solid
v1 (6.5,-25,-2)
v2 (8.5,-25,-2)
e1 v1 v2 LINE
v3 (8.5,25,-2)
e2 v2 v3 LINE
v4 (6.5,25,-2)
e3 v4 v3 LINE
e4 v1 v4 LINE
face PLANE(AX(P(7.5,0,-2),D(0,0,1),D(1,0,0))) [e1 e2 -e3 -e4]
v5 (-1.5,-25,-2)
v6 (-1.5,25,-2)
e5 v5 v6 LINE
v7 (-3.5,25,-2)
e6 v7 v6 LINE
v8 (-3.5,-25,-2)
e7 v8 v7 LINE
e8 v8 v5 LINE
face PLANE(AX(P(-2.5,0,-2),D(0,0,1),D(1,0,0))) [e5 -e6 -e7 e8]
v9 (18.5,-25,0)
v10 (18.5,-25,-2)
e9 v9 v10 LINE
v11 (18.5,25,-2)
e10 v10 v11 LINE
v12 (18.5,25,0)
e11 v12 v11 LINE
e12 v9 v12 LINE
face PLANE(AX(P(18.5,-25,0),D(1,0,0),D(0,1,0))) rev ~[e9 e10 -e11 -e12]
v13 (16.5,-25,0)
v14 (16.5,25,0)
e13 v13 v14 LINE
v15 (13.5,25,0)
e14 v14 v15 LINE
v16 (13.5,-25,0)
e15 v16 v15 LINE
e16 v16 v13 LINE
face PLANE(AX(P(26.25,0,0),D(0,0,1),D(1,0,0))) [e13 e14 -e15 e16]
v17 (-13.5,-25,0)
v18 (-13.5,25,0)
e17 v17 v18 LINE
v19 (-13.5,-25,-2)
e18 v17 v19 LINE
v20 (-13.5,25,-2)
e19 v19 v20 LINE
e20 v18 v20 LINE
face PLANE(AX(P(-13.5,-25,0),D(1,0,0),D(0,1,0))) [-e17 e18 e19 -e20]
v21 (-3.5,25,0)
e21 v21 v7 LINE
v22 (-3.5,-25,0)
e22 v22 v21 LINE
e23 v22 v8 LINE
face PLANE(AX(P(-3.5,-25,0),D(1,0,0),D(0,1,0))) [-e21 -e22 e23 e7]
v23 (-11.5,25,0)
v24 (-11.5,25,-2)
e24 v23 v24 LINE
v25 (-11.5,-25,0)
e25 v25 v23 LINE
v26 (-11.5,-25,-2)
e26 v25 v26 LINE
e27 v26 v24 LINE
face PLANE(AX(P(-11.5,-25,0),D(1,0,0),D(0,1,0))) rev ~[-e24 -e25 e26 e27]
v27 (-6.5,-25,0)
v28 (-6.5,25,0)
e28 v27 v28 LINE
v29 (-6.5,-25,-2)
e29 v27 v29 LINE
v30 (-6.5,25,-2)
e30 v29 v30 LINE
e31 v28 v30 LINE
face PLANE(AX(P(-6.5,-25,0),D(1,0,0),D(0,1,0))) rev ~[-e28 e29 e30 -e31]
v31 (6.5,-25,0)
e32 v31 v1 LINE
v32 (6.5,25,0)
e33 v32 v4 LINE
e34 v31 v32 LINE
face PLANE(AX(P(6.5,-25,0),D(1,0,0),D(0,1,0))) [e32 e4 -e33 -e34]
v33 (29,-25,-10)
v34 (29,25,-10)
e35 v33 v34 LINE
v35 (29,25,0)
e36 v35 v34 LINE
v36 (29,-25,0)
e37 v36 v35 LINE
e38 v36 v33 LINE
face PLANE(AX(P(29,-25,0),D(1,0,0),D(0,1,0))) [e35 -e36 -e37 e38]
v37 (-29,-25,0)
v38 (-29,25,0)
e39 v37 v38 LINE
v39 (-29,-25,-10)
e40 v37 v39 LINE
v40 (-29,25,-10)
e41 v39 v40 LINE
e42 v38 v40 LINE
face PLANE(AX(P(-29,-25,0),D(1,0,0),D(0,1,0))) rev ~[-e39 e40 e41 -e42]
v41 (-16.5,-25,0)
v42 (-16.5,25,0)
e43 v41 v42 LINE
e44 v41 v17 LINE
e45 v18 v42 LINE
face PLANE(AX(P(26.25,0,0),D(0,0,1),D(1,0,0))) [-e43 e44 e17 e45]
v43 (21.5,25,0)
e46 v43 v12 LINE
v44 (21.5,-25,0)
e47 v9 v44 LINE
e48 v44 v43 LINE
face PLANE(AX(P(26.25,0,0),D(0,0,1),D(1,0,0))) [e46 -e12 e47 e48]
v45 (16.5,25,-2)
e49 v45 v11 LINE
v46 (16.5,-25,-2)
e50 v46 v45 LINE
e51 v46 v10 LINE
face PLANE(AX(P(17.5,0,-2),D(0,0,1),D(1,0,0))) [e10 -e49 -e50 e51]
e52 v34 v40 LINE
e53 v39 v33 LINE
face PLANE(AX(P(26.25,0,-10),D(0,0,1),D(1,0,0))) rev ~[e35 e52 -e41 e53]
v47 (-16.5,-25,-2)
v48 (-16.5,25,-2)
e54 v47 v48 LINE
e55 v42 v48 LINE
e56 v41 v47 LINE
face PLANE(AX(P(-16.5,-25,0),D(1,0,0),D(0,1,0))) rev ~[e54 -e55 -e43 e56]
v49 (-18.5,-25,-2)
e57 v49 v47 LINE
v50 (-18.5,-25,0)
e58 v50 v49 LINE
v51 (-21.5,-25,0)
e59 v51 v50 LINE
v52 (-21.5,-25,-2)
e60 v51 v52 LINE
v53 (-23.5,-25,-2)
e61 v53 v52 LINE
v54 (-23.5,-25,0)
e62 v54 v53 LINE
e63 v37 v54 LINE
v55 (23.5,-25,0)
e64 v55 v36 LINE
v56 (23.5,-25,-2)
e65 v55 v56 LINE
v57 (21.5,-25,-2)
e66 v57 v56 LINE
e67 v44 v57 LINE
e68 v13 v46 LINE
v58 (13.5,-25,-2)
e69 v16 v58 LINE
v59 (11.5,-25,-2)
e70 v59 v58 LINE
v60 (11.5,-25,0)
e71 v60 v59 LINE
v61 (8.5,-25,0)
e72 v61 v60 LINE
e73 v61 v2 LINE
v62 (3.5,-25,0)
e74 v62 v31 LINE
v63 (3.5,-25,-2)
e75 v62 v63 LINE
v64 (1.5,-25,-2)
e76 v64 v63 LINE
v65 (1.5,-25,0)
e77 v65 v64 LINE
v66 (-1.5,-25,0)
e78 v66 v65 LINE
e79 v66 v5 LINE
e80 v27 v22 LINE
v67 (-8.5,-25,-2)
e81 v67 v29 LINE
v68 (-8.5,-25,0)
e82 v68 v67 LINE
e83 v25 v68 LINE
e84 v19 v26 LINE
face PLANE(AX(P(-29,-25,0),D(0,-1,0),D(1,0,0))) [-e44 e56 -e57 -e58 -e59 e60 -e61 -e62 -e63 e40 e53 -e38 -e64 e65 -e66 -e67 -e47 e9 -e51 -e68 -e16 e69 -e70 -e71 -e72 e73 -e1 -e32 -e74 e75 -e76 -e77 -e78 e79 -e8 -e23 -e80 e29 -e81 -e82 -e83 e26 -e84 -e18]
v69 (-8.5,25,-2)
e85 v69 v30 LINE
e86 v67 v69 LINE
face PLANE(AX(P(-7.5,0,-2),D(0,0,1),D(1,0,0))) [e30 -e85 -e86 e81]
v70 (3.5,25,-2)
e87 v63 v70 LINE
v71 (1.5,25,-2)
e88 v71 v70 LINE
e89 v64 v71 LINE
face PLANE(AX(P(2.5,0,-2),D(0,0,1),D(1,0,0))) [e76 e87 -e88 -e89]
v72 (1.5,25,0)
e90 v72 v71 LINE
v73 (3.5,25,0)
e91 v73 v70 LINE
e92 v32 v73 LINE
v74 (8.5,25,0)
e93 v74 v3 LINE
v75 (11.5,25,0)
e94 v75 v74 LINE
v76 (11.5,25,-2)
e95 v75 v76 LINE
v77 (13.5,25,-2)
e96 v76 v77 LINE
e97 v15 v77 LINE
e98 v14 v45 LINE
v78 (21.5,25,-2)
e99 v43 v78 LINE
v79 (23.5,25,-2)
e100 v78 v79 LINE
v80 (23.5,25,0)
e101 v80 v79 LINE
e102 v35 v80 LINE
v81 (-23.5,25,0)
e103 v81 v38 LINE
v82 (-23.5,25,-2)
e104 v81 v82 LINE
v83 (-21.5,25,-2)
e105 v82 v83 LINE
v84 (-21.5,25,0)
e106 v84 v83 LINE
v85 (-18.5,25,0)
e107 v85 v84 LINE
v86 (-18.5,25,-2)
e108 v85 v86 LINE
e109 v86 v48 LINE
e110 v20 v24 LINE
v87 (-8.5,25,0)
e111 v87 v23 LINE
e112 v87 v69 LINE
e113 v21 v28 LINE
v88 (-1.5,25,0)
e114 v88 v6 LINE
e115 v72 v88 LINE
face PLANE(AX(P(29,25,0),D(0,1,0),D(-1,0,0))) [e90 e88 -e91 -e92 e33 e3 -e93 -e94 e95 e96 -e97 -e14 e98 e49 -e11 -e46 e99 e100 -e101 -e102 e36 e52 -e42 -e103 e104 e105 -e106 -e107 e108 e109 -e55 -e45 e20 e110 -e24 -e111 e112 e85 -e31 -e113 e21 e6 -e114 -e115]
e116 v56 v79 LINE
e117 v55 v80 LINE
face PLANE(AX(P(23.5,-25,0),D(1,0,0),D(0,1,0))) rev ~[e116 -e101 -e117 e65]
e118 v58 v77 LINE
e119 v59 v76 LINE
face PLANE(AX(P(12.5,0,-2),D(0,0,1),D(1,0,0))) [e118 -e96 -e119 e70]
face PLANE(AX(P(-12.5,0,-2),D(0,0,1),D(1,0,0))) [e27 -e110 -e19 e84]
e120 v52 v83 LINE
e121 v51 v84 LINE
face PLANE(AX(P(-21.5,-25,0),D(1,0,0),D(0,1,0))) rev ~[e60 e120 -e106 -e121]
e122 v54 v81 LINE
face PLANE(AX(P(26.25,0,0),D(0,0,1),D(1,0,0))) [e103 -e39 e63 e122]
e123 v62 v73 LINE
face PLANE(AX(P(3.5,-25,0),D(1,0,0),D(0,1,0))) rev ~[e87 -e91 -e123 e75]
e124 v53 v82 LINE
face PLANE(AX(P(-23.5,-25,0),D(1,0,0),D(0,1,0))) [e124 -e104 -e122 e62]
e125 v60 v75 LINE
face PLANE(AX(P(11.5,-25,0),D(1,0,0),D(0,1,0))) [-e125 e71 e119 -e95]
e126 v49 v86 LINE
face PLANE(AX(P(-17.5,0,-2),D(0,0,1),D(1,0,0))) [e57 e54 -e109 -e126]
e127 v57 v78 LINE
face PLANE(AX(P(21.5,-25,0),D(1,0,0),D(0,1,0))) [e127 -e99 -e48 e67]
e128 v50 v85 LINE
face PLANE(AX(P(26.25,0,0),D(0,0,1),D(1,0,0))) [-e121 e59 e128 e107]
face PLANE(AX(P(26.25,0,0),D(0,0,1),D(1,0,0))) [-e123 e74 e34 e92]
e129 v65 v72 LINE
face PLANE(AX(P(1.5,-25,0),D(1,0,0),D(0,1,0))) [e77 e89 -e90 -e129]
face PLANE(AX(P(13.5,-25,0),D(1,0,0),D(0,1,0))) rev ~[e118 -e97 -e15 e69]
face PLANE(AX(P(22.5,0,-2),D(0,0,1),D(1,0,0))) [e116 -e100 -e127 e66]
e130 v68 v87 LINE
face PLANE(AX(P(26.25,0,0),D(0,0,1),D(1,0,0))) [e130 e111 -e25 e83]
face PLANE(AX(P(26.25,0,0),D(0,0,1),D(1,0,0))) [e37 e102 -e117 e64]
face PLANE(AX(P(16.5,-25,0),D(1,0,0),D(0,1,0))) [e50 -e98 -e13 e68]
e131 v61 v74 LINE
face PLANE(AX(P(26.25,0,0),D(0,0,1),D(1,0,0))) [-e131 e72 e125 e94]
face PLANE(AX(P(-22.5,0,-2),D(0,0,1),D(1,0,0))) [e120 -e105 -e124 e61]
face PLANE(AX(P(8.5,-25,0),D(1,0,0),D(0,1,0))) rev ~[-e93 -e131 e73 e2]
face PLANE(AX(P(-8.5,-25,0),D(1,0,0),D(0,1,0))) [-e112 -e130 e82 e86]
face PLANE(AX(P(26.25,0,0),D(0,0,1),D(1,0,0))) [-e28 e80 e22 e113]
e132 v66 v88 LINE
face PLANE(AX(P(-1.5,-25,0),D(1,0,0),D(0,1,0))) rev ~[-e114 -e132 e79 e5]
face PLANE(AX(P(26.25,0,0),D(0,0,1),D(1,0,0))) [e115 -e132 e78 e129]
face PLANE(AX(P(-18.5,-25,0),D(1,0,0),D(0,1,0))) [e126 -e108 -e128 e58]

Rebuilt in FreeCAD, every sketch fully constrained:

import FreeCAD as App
import Part
import Sketcher
Q = App.Units.Quantity

doc = App.newDocument("Part")
body = doc.addObject("PartDesign::Body", "Body")

# Sketch on XY plane
sketch1 = body.newObject("Sketcher::SketchObject", "Sketch")
sketch1.AttachmentSupport = (doc.getObject("XY_Plane"), [""])
sketch1.MapMode = "FlatFace"
sketch1.addGeometry([
    Part.LineSegment(App.Vector(29, -25, 0), App.Vector(29, 25, 0)),
    Part.LineSegment(App.Vector(29, 25, 0), App.Vector(-29, 25, 0)),
    Part.LineSegment(App.Vector(-29, 25, 0), App.Vector(-29, -25, 0)),
    Part.LineSegment(App.Vector(-29, -25, 0), App.Vector(29, -25, 0)),
], False)
sketch1.addConstraint([
    Sketcher.Constraint("Coincident", 0, 2, 1, 1),
    Sketcher.Constraint("Coincident", 1, 2, 2, 1),
    Sketcher.Constraint("Coincident", 2, 2, 3, 1),
    Sketcher.Constraint("Coincident", 3, 2, 0, 1),
    Sketcher.Constraint("Vertical", 0),
    Sketcher.Constraint("Horizontal", 1),
    Sketcher.Constraint("Vertical", 2),
    Sketcher.Constraint("Horizontal", 3),
    Sketcher.Constraint("Symmetric", 0, 2, 2, 2, -1, 1),
    Sketcher.Constraint("DistanceX", 1, 2, 1, 1, Q("58 mm")),
    Sketcher.Constraint("DistanceY", 0, 1, 0, 2, Q("50 mm")),
])
pad1 = body.newObject("PartDesign::Pad", "Pad")
pad1.Profile = sketch1
pad1.Length = 10
pad1.Reversed = True

# Sketch on XY plane
sketch2 = body.newObject("Sketcher::SketchObject", "Sketch001")
sketch2.AttachmentSupport = (doc.getObject("XY_Plane"), [""])
sketch2.MapMode = "FlatFace"
sketch2.addGeometry([
    Part.LineSegment(App.Vector(-23.5, 25, 0), App.Vector(-23.5, -25, 0)),  # 0
    Part.LineSegment(App.Vector(-23.5, -25, 0), App.Vector(-21.5, -25, 0)),  # 1
    Part.LineSegment(App.Vector(-21.5, -25, 0), App.Vector(-21.5, 25, 0)),  # 2
    Part.LineSegment(App.Vector(-21.5, 25, 0), App.Vector(-23.5, 25, 0)),  # 3
    Part.LineSegment(App.Vector(-18.5, 25, 0), App.Vector(-18.5, -25, 0)),  # 4
    Part.LineSegment(App.Vector(-18.5, -25, 0), App.Vector(-16.5, -25, 0)),  # 5
    Part.LineSegment(App.Vector(-16.5, -25, 0), App.Vector(-16.5, 25, 0)),  # 6
    Part.LineSegment(App.Vector(-16.5, 25, 0), App.Vector(-18.5, 25, 0)),  # 7
    Part.LineSegment(App.Vector(-13.5, 25, 0), App.Vector(-13.5, -25, 0)),  # 8
    Part.LineSegment(App.Vector(-13.5, -25, 0), App.Vector(-11.5, -25, 0)),  # 9
    Part.LineSegment(App.Vector(-11.5, -25, 0), App.Vector(-11.5, 25, 0)),  # 10
    Part.LineSegment(App.Vector(-11.5, 25, 0), App.Vector(-13.5, 25, 0)),  # 11
    Part.LineSegment(App.Vector(-8.5, 25, 0), App.Vector(-8.5, -25, 0)),  # 12
    Part.LineSegment(App.Vector(-8.5, -25, 0), App.Vector(-6.5, -25, 0)),  # 13
    Part.LineSegment(App.Vector(-6.5, -25, 0), App.Vector(-6.5, 25, 0)),  # 14
    Part.LineSegment(App.Vector(-6.5, 25, 0), App.Vector(-8.5, 25, 0)),  # 15
    Part.LineSegment(App.Vector(-3.5, 25, 0), App.Vector(-3.5, -25, 0)),  # 16
    Part.LineSegment(App.Vector(-3.5, -25, 0), App.Vector(-1.5, -25, 0)),  # 17
    Part.LineSegment(App.Vector(-1.5, -25, 0), App.Vector(-1.5, 25, 0)),  # 18
    Part.LineSegment(App.Vector(-1.5, 25, 0), App.Vector(-3.5, 25, 0)),  # 19
    Part.LineSegment(App.Vector(1.5, 25, 0), App.Vector(1.5, -25, 0)),  # 20
    Part.LineSegment(App.Vector(1.5, -25, 0), App.Vector(3.5, -25, 0)),  # 21
    Part.LineSegment(App.Vector(3.5, -25, 0), App.Vector(3.5, 25, 0)),  # 22
    Part.LineSegment(App.Vector(3.5, 25, 0), App.Vector(1.5, 25, 0)),  # 23
    Part.LineSegment(App.Vector(6.5, 25, 0), App.Vector(6.5, -25, 0)),  # 24
    Part.LineSegment(App.Vector(6.5, -25, 0), App.Vector(8.5, -25, 0)),  # 25
    Part.LineSegment(App.Vector(8.5, -25, 0), App.Vector(8.5, 25, 0)),  # 26
    Part.LineSegment(App.Vector(8.5, 25, 0), App.Vector(6.5, 25, 0)),  # 27
    Part.LineSegment(App.Vector(11.5, 25, 0), App.Vector(11.5, -25, 0)),  # 28
    Part.LineSegment(App.Vector(11.5, -25, 0), App.Vector(13.5, -25, 0)),  # 29
    Part.LineSegment(App.Vector(13.5, -25, 0), App.Vector(13.5, 25, 0)),  # 30
    Part.LineSegment(App.Vector(13.5, 25, 0), App.Vector(11.5, 25, 0)),  # 31
    Part.LineSegment(App.Vector(16.5, 25, 0), App.Vector(16.5, -25, 0)),  # 32
    Part.LineSegment(App.Vector(16.5, -25, 0), App.Vector(18.5, -25, 0)),  # 33
    Part.LineSegment(App.Vector(18.5, -25, 0), App.Vector(18.5, 25, 0)),  # 34
    Part.LineSegment(App.Vector(18.5, 25, 0), App.Vector(16.5, 25, 0)),  # 35
    Part.LineSegment(App.Vector(21.5, 25, 0), App.Vector(21.5, -25, 0)),  # 36
    Part.LineSegment(App.Vector(21.5, -25, 0), App.Vector(23.5, -25, 0)),  # 37
    Part.LineSegment(App.Vector(23.5, -25, 0), App.Vector(23.5, 25, 0)),  # 38
    Part.LineSegment(App.Vector(23.5, 25, 0), App.Vector(21.5, 25, 0)),  # 39
], False)
sketch2.addConstraint([
    Sketcher.Constraint("Coincident", 0, 2, 1, 1),
    Sketcher.Constraint("Coincident", 1, 2, 2, 1),
    Sketcher.Constraint("Coincident", 2, 2, 3, 1),
    Sketcher.Constraint("Coincident", 3, 2, 0, 1),
    Sketcher.Constraint("Coincident", 4, 2, 5, 1),
    Sketcher.Constraint("Coincident", 5, 2, 6, 1),
    Sketcher.Constraint("Coincident", 6, 2, 7, 1),
    Sketcher.Constraint("Coincident", 7, 2, 4, 1),
    Sketcher.Constraint("Coincident", 8, 2, 9, 1),
    Sketcher.Constraint("Coincident", 9, 2, 10, 1),
    Sketcher.Constraint("Coincident", 10, 2, 11, 1),
    Sketcher.Constraint("Coincident", 11, 2, 8, 1),
    Sketcher.Constraint("Coincident", 12, 2, 13, 1),
    Sketcher.Constraint("Coincident", 13, 2, 14, 1),
    Sketcher.Constraint("Coincident", 14, 2, 15, 1),
    Sketcher.Constraint("Coincident", 15, 2, 12, 1),
    Sketcher.Constraint("Coincident", 16, 2, 17, 1),
    Sketcher.Constraint("Coincident", 17, 2, 18, 1),
    Sketcher.Constraint("Coincident", 18, 2, 19, 1),
    Sketcher.Constraint("Coincident", 19, 2, 16, 1),
    Sketcher.Constraint("Coincident", 20, 2, 21, 1),
    Sketcher.Constraint("Coincident", 21, 2, 22, 1),
    Sketcher.Constraint("Coincident", 22, 2, 23, 1),
    Sketcher.Constraint("Coincident", 23, 2, 20, 1),
    Sketcher.Constraint("Coincident", 24, 2, 25, 1),
    Sketcher.Constraint("Coincident", 25, 2, 26, 1),
    Sketcher.Constraint("Coincident", 26, 2, 27, 1),
    Sketcher.Constraint("Coincident", 27, 2, 24, 1),
    Sketcher.Constraint("Coincident", 28, 2, 29, 1),
    Sketcher.Constraint("Coincident", 29, 2, 30, 1),
    Sketcher.Constraint("Coincident", 30, 2, 31, 1),
    Sketcher.Constraint("Coincident", 31, 2, 28, 1),
    Sketcher.Constraint("Coincident", 32, 2, 33, 1),
    Sketcher.Constraint("Coincident", 33, 2, 34, 1),
    Sketcher.Constraint("Coincident", 34, 2, 35, 1),
    Sketcher.Constraint("Coincident", 35, 2, 32, 1),
    Sketcher.Constraint("Coincident", 36, 2, 37, 1),
    Sketcher.Constraint("Coincident", 37, 2, 38, 1),
    Sketcher.Constraint("Coincident", 38, 2, 39, 1),
    Sketcher.Constraint("Coincident", 39, 2, 36, 1),
    Sketcher.Constraint("Vertical", 0),
    Sketcher.Constraint("Horizontal", 1),
    Sketcher.Constraint("Vertical", 2),
    Sketcher.Constraint("Horizontal", 3),
    Sketcher.Constraint("Vertical", 4),
    Sketcher.Constraint("Horizontal", 5),
    Sketcher.Constraint("Vertical", 6),
    Sketcher.Constraint("Horizontal", 7),
    Sketcher.Constraint("Vertical", 8),
    Sketcher.Constraint("Horizontal", 9),
    Sketcher.Constraint("Vertical", 10),
    Sketcher.Constraint("Horizontal", 11),
    Sketcher.Constraint("Vertical", 12),
    Sketcher.Constraint("Horizontal", 13),
    Sketcher.Constraint("Vertical", 14),
    Sketcher.Constraint("Horizontal", 15),
    Sketcher.Constraint("Vertical", 16),
    Sketcher.Constraint("Horizontal", 17),
    Sketcher.Constraint("Vertical", 18),
    Sketcher.Constraint("Horizontal", 19),
    Sketcher.Constraint("Vertical", 20),
    Sketcher.Constraint("Horizontal", 21),
    Sketcher.Constraint("Vertical", 22),
    Sketcher.Constraint("Horizontal", 23),
    Sketcher.Constraint("Vertical", 24),
    Sketcher.Constraint("Horizontal", 25),
    Sketcher.Constraint("Vertical", 26),
    Sketcher.Constraint("Horizontal", 27),
    Sketcher.Constraint("Vertical", 28),
    Sketcher.Constraint("Horizontal", 29),
    Sketcher.Constraint("Vertical", 30),
    Sketcher.Constraint("Horizontal", 31),
    Sketcher.Constraint("Vertical", 32),
    Sketcher.Constraint("Horizontal", 33),
    Sketcher.Constraint("Vertical", 34),
    Sketcher.Constraint("Horizontal", 35),
    Sketcher.Constraint("Vertical", 36),
    Sketcher.Constraint("Horizontal", 37),
    Sketcher.Constraint("Vertical", 38),
    Sketcher.Constraint("Horizontal", 39),
    Sketcher.Constraint("Symmetric", 18, 2, 20, 2, -1, 1),
    Sketcher.Constraint("Symmetric", 16, 2, 22, 2, -1, 1),
    Sketcher.Constraint("Symmetric", 14, 2, 24, 2, -1, 1),
    Sketcher.Constraint("Symmetric", 12, 2, 26, 2, -1, 1),
    Sketcher.Constraint("Symmetric", 10, 2, 28, 2, -1, 1),
    Sketcher.Constraint("Symmetric", 8, 2, 30, 2, -1, 1),
    Sketcher.Constraint("Symmetric", 6, 2, 32, 2, -1, 1),
    Sketcher.Constraint("Symmetric", 4, 2, 34, 2, -1, 1),
    Sketcher.Constraint("Symmetric", 2, 2, 36, 2, -1, 1),
    Sketcher.Constraint("Symmetric", 0, 2, 38, 2, -1, 1),
    Sketcher.Constraint("Horizontal", 1, 2, 4, 2),
    Sketcher.Constraint("Horizontal", 3, 2, 6, 2),
    Sketcher.Constraint("Horizontal", 5, 2, 8, 2),
    Sketcher.Constraint("Horizontal", 7, 2, 10, 2),
    Sketcher.Constraint("Horizontal", 9, 2, 12, 2),
    Sketcher.Constraint("Horizontal", 11, 2, 14, 2),
    Sketcher.Constraint("Horizontal", 13, 2, 16, 2),
    Sketcher.Constraint("Horizontal", 15, 2, 18, 2),
    Sketcher.Constraint("Horizontal", 17, 2, 20, 2),
    Sketcher.Constraint("Equal", 3, 5),
    Sketcher.Constraint("Equal", 7, 9),
    Sketcher.Constraint("Equal", 11, 13),
    Sketcher.Constraint("Equal", 15, 17),
    Sketcher.Constraint("DistanceX", 1, 1, 1, 2, Q("2 mm")),
    Sketcher.Constraint("DistanceY", 0, 2, 0, 1, Q("50 mm")),
    Sketcher.Constraint("DistanceX", 1, 2, 4, 2, Q("3 mm")),
    Sketcher.Constraint("DistanceX", 5, 2, 8, 2, Q("3 mm")),
    Sketcher.Constraint("DistanceX", 9, 2, 12, 2, Q("3 mm")),
    Sketcher.Constraint("DistanceX", 13, 2, 16, 2, Q("3 mm")),
    Sketcher.Constraint("DistanceX", 17, 2, 20, 2, Q("3 mm")),
])
pocket1 = body.newObject("PartDesign::Pocket", "Pocket")
pocket1.Profile = sketch2
pocket1.Length = 2

doc.recompute()
